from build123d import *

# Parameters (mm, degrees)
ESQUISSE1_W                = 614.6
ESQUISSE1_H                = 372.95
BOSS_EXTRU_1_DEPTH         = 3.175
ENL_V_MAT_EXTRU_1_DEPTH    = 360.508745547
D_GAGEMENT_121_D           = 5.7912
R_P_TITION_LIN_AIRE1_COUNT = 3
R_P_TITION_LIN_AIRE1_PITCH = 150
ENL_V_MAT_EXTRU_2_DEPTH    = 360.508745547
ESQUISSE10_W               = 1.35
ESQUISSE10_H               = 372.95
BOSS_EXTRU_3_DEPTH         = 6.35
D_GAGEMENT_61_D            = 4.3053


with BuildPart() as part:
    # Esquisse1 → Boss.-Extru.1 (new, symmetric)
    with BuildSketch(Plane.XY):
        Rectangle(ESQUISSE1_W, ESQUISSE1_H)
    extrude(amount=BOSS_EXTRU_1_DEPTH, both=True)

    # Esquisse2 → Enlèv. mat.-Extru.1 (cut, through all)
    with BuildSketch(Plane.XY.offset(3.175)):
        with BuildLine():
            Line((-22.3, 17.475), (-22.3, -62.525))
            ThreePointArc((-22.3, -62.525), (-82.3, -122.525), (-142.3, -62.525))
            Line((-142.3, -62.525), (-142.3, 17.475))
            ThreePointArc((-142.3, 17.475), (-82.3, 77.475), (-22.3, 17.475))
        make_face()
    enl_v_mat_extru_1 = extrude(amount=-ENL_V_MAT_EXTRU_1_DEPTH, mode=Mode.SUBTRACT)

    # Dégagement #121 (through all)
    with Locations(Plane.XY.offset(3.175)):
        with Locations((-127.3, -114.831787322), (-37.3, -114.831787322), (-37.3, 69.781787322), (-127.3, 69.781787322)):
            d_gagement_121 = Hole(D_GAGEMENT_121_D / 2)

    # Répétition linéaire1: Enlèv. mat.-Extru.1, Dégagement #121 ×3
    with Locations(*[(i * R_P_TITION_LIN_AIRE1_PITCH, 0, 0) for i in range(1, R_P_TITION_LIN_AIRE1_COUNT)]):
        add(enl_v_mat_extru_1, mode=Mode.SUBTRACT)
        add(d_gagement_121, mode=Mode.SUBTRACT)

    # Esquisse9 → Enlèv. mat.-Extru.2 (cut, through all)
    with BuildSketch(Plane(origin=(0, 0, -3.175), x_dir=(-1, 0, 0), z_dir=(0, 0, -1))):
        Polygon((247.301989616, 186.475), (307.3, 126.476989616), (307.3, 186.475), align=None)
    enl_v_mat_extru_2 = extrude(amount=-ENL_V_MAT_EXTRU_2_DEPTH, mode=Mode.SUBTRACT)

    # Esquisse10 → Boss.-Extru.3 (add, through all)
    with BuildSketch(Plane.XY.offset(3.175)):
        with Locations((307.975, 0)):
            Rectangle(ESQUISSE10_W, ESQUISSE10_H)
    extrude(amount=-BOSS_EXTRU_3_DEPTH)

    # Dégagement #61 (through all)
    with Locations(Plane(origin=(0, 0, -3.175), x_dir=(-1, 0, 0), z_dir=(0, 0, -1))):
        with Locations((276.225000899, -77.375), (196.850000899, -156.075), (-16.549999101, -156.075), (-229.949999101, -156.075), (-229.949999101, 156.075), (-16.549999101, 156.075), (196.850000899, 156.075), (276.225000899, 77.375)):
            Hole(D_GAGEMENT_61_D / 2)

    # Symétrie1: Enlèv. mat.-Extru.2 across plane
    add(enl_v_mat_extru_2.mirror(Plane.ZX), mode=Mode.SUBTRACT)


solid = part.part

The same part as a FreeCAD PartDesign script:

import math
import FreeCAD as App
import Part
import Sketcher
from FreeCAD import Vector

doc = App.newDocument("Part")
params = doc.addObject("Spreadsheet::Sheet", "Params")
for row, (alias, value) in enumerate([
    ("sketch1_width", "614.6 mm"),
    ("sketch1_height", "372.95 mm"),
    ("pad1_length", "6.35 mm"),
    ("sketch2_radius", "60 mm"),
    ("sketch2_height", "80 mm"),
    ("hole_diameter", "5.7912 mm"),
    ("linearpattern_pitch", "150 mm"),
    ("sketch4_length", "84.85 mm"),
    ("sketch5_width", "1.35 mm"),
    ("sketch5_height", "372.95 mm"),
    ("pad2_length", "6.35 mm"),
    ("hole2_diameter", "4.3053 mm"),
], start=1):
    params.set(f"A{row}", alias)
    params.set(f"B{row}", "=" + value)
    params.setAlias(f"B{row}", alias)

body = doc.addObject("PartDesign::Body", "Body")

# Sketch on XY plane
sketch1 = body.newObject("Sketcher::SketchObject", "Sketch")
sketch1.AttachmentSupport = (doc.getObject("XY_Plane"), [""])
sketch1.MapMode = "FlatFace"
sketch1.addGeometry(Part.LineSegment(Vector(-307, 186, 0), Vector(-307, -186, 0)), False)
sketch1.addGeometry(Part.LineSegment(Vector(-307, -186, 0), Vector(307, -186, 0)), False)
sketch1.addGeometry(Part.LineSegment(Vector(307, -186, 0), Vector(307, 186, 0)), False)
sketch1.addGeometry(Part.LineSegment(Vector(307, 186, 0), Vector(-307, 186, 0)), False)
sketch1.addConstraint(Sketcher.Constraint("Coincident", 0, 2, 1, 1))
sketch1.addConstraint(Sketcher.Constraint("Coincident", 1, 2, 2, 1))
sketch1.addConstraint(Sketcher.Constraint("Coincident", 2, 2, 3, 1))
sketch1.addConstraint(Sketcher.Constraint("Coincident", 3, 2, 0, 1))
sketch1.addConstraint(Sketcher.Constraint("Vertical", 0))
sketch1.addConstraint(Sketcher.Constraint("Horizontal", 1))
sketch1.addConstraint(Sketcher.Constraint("Vertical", 2))
sketch1.addConstraint(Sketcher.Constraint("Horizontal", 3))
sketch1.addConstraint(Sketcher.Constraint("Symmetric", 0, 2, 2, 2, -1, 1))
sketch1.addConstraint(Sketcher.Constraint("DistanceX", 1, 1, 1, 2, 614.6))
sketch1.addConstraint(Sketcher.Constraint("DistanceY", 0, 2, 0, 1, 372.95))
sketch1.setExpression("Constraints[9]", "Params.sketch1_width")
sketch1.setExpression("Constraints[10]", "Params.sketch1_height")
pad1 = body.newObject("PartDesign::Pad", "Pad")
pad1.Profile = sketch1
pad1.setExpression("Length", "Params.pad1_length")
pad1.Midplane = True

# Sketch on XY plane
sketch2 = body.newObject("Sketcher::SketchObject", "Sketch001")
sketch2.AttachmentSupport = (doc.getObject("XY_Plane"), [""])
sketch2.MapMode = "FlatFace"
sketch2.AttachmentOffset = App.Placement(Vector(0, 0, 3.175), App.Rotation())
sketch2.addGeometry(Part.LineSegment(Vector(-22, -63, 0), Vector(-22, 17, 0)), False)
sketch2.addGeometry(Part.ArcOfCircle(Part.Circle(Vector(-82, 17, 0), Vector(0, 0, 1), 60), math.radians(0), math.radians(180)), False)
sketch2.addGeometry(Part.LineSegment(Vector(-142, 17, 0), Vector(-142, -63, 0)), False)
sketch2.addGeometry(Part.ArcOfCircle(Part.Circle(Vector(-82, -63, 0), Vector(0, 0, 1), 60), math.radians(180), math.radians(360)), False)
sketch2.addConstraint(Sketcher.Constraint("Tangent", 0, 2, 1, 1))
sketch2.addConstraint(Sketcher.Constraint("Tangent", 1, 2, 2, 1))
sketch2.addConstraint(Sketcher.Constraint("Tangent", 2, 2, 3, 1))
sketch2.addConstraint(Sketcher.Constraint("Tangent", 3, 2, 0, 1))
sketch2.addConstraint(Sketcher.Constraint("Vertical", 0))
sketch2.addConstraint(Sketcher.Constraint("Vertical", 2))
sketch2.addConstraint(Sketcher.Constraint("Radius", 1, 60.0))
sketch2.addConstraint(Sketcher.Constraint("DistanceY", 0, 1, 0, 2, 80.0))
sketch2.addConstraint(Sketcher.Constraint("DistanceX", 1, 3, -1, 1, 82.3))
sketch2.addConstraint(Sketcher.Constraint("DistanceY", -1, 1, 1, 3, 17.475))
sketch2.setExpression("Constraints[6]", "Params.sketch2_radius")
sketch2.setExpression("Constraints[7]", "Params.sketch2_height")
pocket1 = body.newObject("PartDesign::Pocket", "Pocket")
pocket1.Profile = sketch2
pocket1.Type = "ThroughAll"

# Sketch on XY plane
sketch3 = body.newObject("Sketcher::SketchObject", "Sketch002")
sketch3.AttachmentSupport = (doc.getObject("XY_Plane"), [""])
sketch3.MapMode = "FlatFace"
sketch3.AttachmentOffset = App.Placement(Vector(0, 0, 3.175), App.Rotation())
sketch3.addGeometry(Part.Circle(Vector(-127.3, -114.8, 0), Vector(0, 0, 1), 2.9), False)
sketch3.addGeometry(Part.Circle(Vector(-37.3, -114.8, 0), Vector(0, 0, 1), 2.9), False)
sketch3.addGeometry(Part.Circle(Vector(-37.3, 69.8, 0), Vector(0, 0, 1), 2.9), False)
sketch3.addGeometry(Part.Circle(Vector(-127.3, 69.8, 0), Vector(0, 0, 1), 2.9), False)
sketch3.addConstraint(Sketcher.Constraint("Equal", 0, 1))
sketch3.addConstraint(Sketcher.Constraint("Equal", 1, 2))
sketch3.addConstraint(Sketcher.Constraint("Equal", 2, 3))
sketch3.addConstraint(Sketcher.Constraint("Horizontal", 0, 3, 1, 3))
sketch3.addConstraint(Sketcher.Constraint("Horizontal", 2, 3, 3, 3))
sketch3.addConstraint(Sketcher.Constraint("Vertical", 1, 3, 2, 3))
sketch3.addConstraint(Sketcher.Constraint("Vertical", 0, 3, 3, 3))
sketch3.addConstraint(Sketcher.Constraint("DistanceX", 0, 3, 1, 3, 90.0))
sketch3.addConstraint(Sketcher.Constraint("Diameter", 0, 5.7912))
sketch3.addConstraint(Sketcher.Constraint("DistanceX", 0, 3, -1, 1, 127.3))
sketch3.addConstraint(Sketcher.Constraint("DistanceY", 0, 3, -1, 1, 114.831787))
sketch3.addConstraint(Sketcher.Constraint("DistanceY", -1, 1, 2, 3, 69.781787))
doc.recompute()
hole = body.newObject("PartDesign::Hole", "Hole")
hole.Profile = sketch3
hole.ThreadType = "None"
hole.setExpression("Diameter", "Params.hole_diameter")
hole.DepthType = "ThroughAll"
doc.recompute()

linearpattern = body.newObject("PartDesign::LinearPattern", "LinearPattern")
linearpattern.Originals = [pocket1, hole]
linearpattern.Direction = (doc.getObject("X_Axis"), [""])
linearpattern.Mode = "offset"
linearpattern.setExpression("Offset", "Params.linearpattern_pitch")
linearpattern.Occurrences = 3
body.Tip = linearpattern

# Sketch on XY plane
sketch4 = body.newObject("Sketcher::SketchObject", "Sketch003")
sketch4.AttachmentSupport = (doc.getObject("XY_Plane"), [""])
sketch4.MapMode = "FlatFace"
sketch4.AttachmentOffset = App.Placement(Vector(0, 0, -3.175), App.Rotation())
sketch4.addGeometry(Part.LineSegment(Vector(-247, 186, 0), Vector(-307, 126, 0)), False)
sketch4.addGeometry(Part.LineSegment(Vector(-307, 126, 0), Vector(-307, 186, 0)), False)
sketch4.addGeometry(Part.LineSegment(Vector(-307, 186, 0), Vector(-247, 186, 0)), False)
sketch4.addConstraint(Sketcher.Constraint("Coincident", 0, 2, 1, 1))
sketch4.addConstraint(Sketcher.Constraint("Coincident", 1, 2, 2, 1))
sketch4.addConstraint(Sketcher.Constraint("Coincident", 2, 2, 0, 1))
sketch4.addConstraint(Sketcher.Constraint("Vertical", 1))
sketch4.addConstraint(Sketcher.Constraint("Horizontal", 2))
sketch4.addConstraint(Sketcher.Constraint("Equal", 2, 1))
sketch4.addConstraint(Sketcher.Constraint("DistanceX", 0, 2, -1, 1, 307.3))
sketch4.addConstraint(Sketcher.Constraint("Distance", 0, 84.85))
sketch4.addConstraint(Sketcher.Constraint("DistanceY", -1, 1, 1, 2, 186.475))
sketch4.setExpression("Constraints[7]", "Params.sketch4_length")
pocket2 = body.newObject("PartDesign::Pocket", "Pocket001")
pocket2.Profile = sketch4
pocket2.Type = "ThroughAll"
pocket2.Reversed = True

# Sketch on XY plane
sketch5 = body.newObject("Sketcher::SketchObject", "Sketch004")
sketch5.AttachmentSupport = (doc.getObject("XY_Plane"), [""])
sketch5.MapMode = "FlatFace"
sketch5.AttachmentOffset = App.Placement(Vector(0, 0, 3.175), App.Rotation())
sketch5.addGeometry(Part.LineSegment(Vector(307.3, 186.5, 0), Vector(307.3, -186.5, 0)), False)
sketch5.addGeometry(Part.LineSegment(Vector(307.3, -186.5, 0), Vector(308.6, -186.5, 0)), False)
sketch5.addGeometry(Part.LineSegment(Vector(308.6, -186.5, 0), Vector(308.6, 186.5, 0)), False)
sketch5.addGeometry(Part.LineSegment(Vector(308.6, 186.5, 0), Vector(307.3, 186.5, 0)), False)
sketch5.addConstraint(Sketcher.Constraint("Coincident", 0, 2, 1, 1))
sketch5.addConstraint(Sketcher.Constraint("Coincident", 1, 2, 2, 1))
sketch5.addConstraint(Sketcher.Constraint("Coincident", 2, 2, 3, 1))
sketch5.addConstraint(Sketcher.Constraint("Coincident", 3, 2, 0, 1))
sketch5.addConstraint(Sketcher.Constraint("Vertical", 0))
sketch5.addConstraint(Sketcher.Constraint("Horizontal", 1))
sketch5.addConstraint(Sketcher.Constraint("Vertical", 2))
sketch5.addConstraint(Sketcher.Constraint("Horizontal", 3))
sketch5.addConstraint(Sketcher.Constraint("DistanceX", 1, 1, 1, 2, 1.35))
sketch5.addConstraint(Sketcher.Constraint("DistanceY", 0, 2, 0, 1, 372.95))
sketch5.addConstraint(Sketcher.Constraint("DistanceX", -1, 1, 0, 2, 307.3))
sketch5.addConstraint(Sketcher.Constraint("DistanceY", 0, 2, -1, 1, 186.475))
sketch5.setExpression("Constraints[8]", "Params.sketch5_width")
sketch5.setExpression("Constraints[9]", "Params.sketch5_height")
pad2 = body.newObject("PartDesign::Pad", "Pad001")
pad2.Profile = sketch5
pad2.setExpression("Length", "Params.pad2_length")
pad2.Reversed = True

# Sketch on XY plane
sketch6 = body.newObject("Sketcher::SketchObject", "Sketch005")
sketch6.AttachmentSupport = (doc.getObject("XY_Plane"), [""])
sketch6.MapMode = "FlatFace"
sketch6.AttachmentOffset = App.Placement(Vector(0, 0, -3.175), App.Rotation())
sketch6.addGeometry(Part.Circle(Vector(-276.2, -77.4, 0), Vector(0, 0, 1), 2.2), False)
sketch6.addGeometry(Part.Circle(Vector(-196.9, -156.1, 0), Vector(0, 0, 1), 2.2), False)
sketch6.addGeometry(Part.Circle(Vector(16.5, -156.1, 0), Vector(0, 0, 1), 2.2), False)
sketch6.addGeometry(Part.Circle(Vector(229.9, -156.1, 0), Vector(0, 0, 1), 2.2), False)
sketch6.addGeometry(Part.Circle(Vector(229.9, 156.1, 0), Vector(0, 0, 1), 2.2), False)
sketch6.addGeometry(Part.Circle(Vector(16.5, 156.1, 0), Vector(0, 0, 1), 2.2), False)
sketch6.addGeometry(Part.Circle(Vector(-196.9, 156.1, 0), Vector(0, 0, 1), 2.2), False)
sketch6.addGeometry(Part.Circle(Vector(-276.2, 77.4, 0), Vector(0, 0, 1), 2.2), False)
sketch6.addConstraint(Sketcher.Constraint("Equal", 0, 1))
sketch6.addConstraint(Sketcher.Constraint("Equal", 1, 2))
sketch6.addConstraint(Sketcher.Constraint("Equal", 2, 3))
sketch6.addConstraint(Sketcher.Constraint("Equal", 3, 4))
sketch6.addConstraint(Sketcher.Constraint("Equal", 4, 5))
sketch6.addConstraint(Sketcher.Constraint("Equal", 5, 6))
sketch6.addConstraint(Sketcher.Constraint("Equal", 6, 7))
sketch6.addConstraint(Sketcher.Constraint("Symmetric", 3, 3, 4, 3, -1))
sketch6.addConstraint(Sketcher.Constraint("Symmetric", 2, 3, 5, 3, -1))
sketch6.addConstraint(Sketcher.Constraint("Symmetric", 1, 3, 6, 3, -1))
sketch6.addConstraint(Sketcher.Constraint("Symmetric", 0, 3, 7, 3, -1))
sketch6.addConstraint(Sketcher.Constraint("Horizontal", 1, 3, 2, 3))
sketch6.addConstraint(Sketcher.Constraint("Horizontal", 2, 3, 3, 3))
sketch6.addConstraint(Sketcher.Constraint("Diameter", 0, 4.3053))
sketch6.addConstraint(Sketcher.Constraint("DistanceY", 1, 3, 0, 3, 78.7))
sketch6.addConstraint(Sketcher.Constraint("DistanceX", 1, 3, 2, 3, 213.4))
sketch6.addConstraint(Sketcher.Constraint("DistanceX", 2, 3, 3, 3, 213.4))
sketch6.addConstraint(Sketcher.Constraint("DistanceX", 1, 3, -1, 1, 196.850001))
sketch6.addConstraint(Sketcher.Constraint("DistanceY", 3, 3, 4, 3, 312.15))
sketch6.addConstraint(Sketcher.Constraint("DistanceX", 0, 3, -1, 1, 276.225001))
doc.recompute()
hole2 = body.newObject("PartDesign::Hole", "Hole001")
hole2.Profile = sketch6
hole2.ThreadType = "None"
hole2.setExpression("Diameter", "Params.hole2_diameter")
hole2.DepthType = "ThroughAll"
hole2.Reversed = True
doc.recompute()

mirrored = body.newObject("PartDesign::Mirrored", "Mirrored")
mirrored.Originals = [pocket2]
mirrored.MirrorPlane = (doc.getObject("XZ_Plane"), [""])
body.Tip = mirrored

doc.recompute()
